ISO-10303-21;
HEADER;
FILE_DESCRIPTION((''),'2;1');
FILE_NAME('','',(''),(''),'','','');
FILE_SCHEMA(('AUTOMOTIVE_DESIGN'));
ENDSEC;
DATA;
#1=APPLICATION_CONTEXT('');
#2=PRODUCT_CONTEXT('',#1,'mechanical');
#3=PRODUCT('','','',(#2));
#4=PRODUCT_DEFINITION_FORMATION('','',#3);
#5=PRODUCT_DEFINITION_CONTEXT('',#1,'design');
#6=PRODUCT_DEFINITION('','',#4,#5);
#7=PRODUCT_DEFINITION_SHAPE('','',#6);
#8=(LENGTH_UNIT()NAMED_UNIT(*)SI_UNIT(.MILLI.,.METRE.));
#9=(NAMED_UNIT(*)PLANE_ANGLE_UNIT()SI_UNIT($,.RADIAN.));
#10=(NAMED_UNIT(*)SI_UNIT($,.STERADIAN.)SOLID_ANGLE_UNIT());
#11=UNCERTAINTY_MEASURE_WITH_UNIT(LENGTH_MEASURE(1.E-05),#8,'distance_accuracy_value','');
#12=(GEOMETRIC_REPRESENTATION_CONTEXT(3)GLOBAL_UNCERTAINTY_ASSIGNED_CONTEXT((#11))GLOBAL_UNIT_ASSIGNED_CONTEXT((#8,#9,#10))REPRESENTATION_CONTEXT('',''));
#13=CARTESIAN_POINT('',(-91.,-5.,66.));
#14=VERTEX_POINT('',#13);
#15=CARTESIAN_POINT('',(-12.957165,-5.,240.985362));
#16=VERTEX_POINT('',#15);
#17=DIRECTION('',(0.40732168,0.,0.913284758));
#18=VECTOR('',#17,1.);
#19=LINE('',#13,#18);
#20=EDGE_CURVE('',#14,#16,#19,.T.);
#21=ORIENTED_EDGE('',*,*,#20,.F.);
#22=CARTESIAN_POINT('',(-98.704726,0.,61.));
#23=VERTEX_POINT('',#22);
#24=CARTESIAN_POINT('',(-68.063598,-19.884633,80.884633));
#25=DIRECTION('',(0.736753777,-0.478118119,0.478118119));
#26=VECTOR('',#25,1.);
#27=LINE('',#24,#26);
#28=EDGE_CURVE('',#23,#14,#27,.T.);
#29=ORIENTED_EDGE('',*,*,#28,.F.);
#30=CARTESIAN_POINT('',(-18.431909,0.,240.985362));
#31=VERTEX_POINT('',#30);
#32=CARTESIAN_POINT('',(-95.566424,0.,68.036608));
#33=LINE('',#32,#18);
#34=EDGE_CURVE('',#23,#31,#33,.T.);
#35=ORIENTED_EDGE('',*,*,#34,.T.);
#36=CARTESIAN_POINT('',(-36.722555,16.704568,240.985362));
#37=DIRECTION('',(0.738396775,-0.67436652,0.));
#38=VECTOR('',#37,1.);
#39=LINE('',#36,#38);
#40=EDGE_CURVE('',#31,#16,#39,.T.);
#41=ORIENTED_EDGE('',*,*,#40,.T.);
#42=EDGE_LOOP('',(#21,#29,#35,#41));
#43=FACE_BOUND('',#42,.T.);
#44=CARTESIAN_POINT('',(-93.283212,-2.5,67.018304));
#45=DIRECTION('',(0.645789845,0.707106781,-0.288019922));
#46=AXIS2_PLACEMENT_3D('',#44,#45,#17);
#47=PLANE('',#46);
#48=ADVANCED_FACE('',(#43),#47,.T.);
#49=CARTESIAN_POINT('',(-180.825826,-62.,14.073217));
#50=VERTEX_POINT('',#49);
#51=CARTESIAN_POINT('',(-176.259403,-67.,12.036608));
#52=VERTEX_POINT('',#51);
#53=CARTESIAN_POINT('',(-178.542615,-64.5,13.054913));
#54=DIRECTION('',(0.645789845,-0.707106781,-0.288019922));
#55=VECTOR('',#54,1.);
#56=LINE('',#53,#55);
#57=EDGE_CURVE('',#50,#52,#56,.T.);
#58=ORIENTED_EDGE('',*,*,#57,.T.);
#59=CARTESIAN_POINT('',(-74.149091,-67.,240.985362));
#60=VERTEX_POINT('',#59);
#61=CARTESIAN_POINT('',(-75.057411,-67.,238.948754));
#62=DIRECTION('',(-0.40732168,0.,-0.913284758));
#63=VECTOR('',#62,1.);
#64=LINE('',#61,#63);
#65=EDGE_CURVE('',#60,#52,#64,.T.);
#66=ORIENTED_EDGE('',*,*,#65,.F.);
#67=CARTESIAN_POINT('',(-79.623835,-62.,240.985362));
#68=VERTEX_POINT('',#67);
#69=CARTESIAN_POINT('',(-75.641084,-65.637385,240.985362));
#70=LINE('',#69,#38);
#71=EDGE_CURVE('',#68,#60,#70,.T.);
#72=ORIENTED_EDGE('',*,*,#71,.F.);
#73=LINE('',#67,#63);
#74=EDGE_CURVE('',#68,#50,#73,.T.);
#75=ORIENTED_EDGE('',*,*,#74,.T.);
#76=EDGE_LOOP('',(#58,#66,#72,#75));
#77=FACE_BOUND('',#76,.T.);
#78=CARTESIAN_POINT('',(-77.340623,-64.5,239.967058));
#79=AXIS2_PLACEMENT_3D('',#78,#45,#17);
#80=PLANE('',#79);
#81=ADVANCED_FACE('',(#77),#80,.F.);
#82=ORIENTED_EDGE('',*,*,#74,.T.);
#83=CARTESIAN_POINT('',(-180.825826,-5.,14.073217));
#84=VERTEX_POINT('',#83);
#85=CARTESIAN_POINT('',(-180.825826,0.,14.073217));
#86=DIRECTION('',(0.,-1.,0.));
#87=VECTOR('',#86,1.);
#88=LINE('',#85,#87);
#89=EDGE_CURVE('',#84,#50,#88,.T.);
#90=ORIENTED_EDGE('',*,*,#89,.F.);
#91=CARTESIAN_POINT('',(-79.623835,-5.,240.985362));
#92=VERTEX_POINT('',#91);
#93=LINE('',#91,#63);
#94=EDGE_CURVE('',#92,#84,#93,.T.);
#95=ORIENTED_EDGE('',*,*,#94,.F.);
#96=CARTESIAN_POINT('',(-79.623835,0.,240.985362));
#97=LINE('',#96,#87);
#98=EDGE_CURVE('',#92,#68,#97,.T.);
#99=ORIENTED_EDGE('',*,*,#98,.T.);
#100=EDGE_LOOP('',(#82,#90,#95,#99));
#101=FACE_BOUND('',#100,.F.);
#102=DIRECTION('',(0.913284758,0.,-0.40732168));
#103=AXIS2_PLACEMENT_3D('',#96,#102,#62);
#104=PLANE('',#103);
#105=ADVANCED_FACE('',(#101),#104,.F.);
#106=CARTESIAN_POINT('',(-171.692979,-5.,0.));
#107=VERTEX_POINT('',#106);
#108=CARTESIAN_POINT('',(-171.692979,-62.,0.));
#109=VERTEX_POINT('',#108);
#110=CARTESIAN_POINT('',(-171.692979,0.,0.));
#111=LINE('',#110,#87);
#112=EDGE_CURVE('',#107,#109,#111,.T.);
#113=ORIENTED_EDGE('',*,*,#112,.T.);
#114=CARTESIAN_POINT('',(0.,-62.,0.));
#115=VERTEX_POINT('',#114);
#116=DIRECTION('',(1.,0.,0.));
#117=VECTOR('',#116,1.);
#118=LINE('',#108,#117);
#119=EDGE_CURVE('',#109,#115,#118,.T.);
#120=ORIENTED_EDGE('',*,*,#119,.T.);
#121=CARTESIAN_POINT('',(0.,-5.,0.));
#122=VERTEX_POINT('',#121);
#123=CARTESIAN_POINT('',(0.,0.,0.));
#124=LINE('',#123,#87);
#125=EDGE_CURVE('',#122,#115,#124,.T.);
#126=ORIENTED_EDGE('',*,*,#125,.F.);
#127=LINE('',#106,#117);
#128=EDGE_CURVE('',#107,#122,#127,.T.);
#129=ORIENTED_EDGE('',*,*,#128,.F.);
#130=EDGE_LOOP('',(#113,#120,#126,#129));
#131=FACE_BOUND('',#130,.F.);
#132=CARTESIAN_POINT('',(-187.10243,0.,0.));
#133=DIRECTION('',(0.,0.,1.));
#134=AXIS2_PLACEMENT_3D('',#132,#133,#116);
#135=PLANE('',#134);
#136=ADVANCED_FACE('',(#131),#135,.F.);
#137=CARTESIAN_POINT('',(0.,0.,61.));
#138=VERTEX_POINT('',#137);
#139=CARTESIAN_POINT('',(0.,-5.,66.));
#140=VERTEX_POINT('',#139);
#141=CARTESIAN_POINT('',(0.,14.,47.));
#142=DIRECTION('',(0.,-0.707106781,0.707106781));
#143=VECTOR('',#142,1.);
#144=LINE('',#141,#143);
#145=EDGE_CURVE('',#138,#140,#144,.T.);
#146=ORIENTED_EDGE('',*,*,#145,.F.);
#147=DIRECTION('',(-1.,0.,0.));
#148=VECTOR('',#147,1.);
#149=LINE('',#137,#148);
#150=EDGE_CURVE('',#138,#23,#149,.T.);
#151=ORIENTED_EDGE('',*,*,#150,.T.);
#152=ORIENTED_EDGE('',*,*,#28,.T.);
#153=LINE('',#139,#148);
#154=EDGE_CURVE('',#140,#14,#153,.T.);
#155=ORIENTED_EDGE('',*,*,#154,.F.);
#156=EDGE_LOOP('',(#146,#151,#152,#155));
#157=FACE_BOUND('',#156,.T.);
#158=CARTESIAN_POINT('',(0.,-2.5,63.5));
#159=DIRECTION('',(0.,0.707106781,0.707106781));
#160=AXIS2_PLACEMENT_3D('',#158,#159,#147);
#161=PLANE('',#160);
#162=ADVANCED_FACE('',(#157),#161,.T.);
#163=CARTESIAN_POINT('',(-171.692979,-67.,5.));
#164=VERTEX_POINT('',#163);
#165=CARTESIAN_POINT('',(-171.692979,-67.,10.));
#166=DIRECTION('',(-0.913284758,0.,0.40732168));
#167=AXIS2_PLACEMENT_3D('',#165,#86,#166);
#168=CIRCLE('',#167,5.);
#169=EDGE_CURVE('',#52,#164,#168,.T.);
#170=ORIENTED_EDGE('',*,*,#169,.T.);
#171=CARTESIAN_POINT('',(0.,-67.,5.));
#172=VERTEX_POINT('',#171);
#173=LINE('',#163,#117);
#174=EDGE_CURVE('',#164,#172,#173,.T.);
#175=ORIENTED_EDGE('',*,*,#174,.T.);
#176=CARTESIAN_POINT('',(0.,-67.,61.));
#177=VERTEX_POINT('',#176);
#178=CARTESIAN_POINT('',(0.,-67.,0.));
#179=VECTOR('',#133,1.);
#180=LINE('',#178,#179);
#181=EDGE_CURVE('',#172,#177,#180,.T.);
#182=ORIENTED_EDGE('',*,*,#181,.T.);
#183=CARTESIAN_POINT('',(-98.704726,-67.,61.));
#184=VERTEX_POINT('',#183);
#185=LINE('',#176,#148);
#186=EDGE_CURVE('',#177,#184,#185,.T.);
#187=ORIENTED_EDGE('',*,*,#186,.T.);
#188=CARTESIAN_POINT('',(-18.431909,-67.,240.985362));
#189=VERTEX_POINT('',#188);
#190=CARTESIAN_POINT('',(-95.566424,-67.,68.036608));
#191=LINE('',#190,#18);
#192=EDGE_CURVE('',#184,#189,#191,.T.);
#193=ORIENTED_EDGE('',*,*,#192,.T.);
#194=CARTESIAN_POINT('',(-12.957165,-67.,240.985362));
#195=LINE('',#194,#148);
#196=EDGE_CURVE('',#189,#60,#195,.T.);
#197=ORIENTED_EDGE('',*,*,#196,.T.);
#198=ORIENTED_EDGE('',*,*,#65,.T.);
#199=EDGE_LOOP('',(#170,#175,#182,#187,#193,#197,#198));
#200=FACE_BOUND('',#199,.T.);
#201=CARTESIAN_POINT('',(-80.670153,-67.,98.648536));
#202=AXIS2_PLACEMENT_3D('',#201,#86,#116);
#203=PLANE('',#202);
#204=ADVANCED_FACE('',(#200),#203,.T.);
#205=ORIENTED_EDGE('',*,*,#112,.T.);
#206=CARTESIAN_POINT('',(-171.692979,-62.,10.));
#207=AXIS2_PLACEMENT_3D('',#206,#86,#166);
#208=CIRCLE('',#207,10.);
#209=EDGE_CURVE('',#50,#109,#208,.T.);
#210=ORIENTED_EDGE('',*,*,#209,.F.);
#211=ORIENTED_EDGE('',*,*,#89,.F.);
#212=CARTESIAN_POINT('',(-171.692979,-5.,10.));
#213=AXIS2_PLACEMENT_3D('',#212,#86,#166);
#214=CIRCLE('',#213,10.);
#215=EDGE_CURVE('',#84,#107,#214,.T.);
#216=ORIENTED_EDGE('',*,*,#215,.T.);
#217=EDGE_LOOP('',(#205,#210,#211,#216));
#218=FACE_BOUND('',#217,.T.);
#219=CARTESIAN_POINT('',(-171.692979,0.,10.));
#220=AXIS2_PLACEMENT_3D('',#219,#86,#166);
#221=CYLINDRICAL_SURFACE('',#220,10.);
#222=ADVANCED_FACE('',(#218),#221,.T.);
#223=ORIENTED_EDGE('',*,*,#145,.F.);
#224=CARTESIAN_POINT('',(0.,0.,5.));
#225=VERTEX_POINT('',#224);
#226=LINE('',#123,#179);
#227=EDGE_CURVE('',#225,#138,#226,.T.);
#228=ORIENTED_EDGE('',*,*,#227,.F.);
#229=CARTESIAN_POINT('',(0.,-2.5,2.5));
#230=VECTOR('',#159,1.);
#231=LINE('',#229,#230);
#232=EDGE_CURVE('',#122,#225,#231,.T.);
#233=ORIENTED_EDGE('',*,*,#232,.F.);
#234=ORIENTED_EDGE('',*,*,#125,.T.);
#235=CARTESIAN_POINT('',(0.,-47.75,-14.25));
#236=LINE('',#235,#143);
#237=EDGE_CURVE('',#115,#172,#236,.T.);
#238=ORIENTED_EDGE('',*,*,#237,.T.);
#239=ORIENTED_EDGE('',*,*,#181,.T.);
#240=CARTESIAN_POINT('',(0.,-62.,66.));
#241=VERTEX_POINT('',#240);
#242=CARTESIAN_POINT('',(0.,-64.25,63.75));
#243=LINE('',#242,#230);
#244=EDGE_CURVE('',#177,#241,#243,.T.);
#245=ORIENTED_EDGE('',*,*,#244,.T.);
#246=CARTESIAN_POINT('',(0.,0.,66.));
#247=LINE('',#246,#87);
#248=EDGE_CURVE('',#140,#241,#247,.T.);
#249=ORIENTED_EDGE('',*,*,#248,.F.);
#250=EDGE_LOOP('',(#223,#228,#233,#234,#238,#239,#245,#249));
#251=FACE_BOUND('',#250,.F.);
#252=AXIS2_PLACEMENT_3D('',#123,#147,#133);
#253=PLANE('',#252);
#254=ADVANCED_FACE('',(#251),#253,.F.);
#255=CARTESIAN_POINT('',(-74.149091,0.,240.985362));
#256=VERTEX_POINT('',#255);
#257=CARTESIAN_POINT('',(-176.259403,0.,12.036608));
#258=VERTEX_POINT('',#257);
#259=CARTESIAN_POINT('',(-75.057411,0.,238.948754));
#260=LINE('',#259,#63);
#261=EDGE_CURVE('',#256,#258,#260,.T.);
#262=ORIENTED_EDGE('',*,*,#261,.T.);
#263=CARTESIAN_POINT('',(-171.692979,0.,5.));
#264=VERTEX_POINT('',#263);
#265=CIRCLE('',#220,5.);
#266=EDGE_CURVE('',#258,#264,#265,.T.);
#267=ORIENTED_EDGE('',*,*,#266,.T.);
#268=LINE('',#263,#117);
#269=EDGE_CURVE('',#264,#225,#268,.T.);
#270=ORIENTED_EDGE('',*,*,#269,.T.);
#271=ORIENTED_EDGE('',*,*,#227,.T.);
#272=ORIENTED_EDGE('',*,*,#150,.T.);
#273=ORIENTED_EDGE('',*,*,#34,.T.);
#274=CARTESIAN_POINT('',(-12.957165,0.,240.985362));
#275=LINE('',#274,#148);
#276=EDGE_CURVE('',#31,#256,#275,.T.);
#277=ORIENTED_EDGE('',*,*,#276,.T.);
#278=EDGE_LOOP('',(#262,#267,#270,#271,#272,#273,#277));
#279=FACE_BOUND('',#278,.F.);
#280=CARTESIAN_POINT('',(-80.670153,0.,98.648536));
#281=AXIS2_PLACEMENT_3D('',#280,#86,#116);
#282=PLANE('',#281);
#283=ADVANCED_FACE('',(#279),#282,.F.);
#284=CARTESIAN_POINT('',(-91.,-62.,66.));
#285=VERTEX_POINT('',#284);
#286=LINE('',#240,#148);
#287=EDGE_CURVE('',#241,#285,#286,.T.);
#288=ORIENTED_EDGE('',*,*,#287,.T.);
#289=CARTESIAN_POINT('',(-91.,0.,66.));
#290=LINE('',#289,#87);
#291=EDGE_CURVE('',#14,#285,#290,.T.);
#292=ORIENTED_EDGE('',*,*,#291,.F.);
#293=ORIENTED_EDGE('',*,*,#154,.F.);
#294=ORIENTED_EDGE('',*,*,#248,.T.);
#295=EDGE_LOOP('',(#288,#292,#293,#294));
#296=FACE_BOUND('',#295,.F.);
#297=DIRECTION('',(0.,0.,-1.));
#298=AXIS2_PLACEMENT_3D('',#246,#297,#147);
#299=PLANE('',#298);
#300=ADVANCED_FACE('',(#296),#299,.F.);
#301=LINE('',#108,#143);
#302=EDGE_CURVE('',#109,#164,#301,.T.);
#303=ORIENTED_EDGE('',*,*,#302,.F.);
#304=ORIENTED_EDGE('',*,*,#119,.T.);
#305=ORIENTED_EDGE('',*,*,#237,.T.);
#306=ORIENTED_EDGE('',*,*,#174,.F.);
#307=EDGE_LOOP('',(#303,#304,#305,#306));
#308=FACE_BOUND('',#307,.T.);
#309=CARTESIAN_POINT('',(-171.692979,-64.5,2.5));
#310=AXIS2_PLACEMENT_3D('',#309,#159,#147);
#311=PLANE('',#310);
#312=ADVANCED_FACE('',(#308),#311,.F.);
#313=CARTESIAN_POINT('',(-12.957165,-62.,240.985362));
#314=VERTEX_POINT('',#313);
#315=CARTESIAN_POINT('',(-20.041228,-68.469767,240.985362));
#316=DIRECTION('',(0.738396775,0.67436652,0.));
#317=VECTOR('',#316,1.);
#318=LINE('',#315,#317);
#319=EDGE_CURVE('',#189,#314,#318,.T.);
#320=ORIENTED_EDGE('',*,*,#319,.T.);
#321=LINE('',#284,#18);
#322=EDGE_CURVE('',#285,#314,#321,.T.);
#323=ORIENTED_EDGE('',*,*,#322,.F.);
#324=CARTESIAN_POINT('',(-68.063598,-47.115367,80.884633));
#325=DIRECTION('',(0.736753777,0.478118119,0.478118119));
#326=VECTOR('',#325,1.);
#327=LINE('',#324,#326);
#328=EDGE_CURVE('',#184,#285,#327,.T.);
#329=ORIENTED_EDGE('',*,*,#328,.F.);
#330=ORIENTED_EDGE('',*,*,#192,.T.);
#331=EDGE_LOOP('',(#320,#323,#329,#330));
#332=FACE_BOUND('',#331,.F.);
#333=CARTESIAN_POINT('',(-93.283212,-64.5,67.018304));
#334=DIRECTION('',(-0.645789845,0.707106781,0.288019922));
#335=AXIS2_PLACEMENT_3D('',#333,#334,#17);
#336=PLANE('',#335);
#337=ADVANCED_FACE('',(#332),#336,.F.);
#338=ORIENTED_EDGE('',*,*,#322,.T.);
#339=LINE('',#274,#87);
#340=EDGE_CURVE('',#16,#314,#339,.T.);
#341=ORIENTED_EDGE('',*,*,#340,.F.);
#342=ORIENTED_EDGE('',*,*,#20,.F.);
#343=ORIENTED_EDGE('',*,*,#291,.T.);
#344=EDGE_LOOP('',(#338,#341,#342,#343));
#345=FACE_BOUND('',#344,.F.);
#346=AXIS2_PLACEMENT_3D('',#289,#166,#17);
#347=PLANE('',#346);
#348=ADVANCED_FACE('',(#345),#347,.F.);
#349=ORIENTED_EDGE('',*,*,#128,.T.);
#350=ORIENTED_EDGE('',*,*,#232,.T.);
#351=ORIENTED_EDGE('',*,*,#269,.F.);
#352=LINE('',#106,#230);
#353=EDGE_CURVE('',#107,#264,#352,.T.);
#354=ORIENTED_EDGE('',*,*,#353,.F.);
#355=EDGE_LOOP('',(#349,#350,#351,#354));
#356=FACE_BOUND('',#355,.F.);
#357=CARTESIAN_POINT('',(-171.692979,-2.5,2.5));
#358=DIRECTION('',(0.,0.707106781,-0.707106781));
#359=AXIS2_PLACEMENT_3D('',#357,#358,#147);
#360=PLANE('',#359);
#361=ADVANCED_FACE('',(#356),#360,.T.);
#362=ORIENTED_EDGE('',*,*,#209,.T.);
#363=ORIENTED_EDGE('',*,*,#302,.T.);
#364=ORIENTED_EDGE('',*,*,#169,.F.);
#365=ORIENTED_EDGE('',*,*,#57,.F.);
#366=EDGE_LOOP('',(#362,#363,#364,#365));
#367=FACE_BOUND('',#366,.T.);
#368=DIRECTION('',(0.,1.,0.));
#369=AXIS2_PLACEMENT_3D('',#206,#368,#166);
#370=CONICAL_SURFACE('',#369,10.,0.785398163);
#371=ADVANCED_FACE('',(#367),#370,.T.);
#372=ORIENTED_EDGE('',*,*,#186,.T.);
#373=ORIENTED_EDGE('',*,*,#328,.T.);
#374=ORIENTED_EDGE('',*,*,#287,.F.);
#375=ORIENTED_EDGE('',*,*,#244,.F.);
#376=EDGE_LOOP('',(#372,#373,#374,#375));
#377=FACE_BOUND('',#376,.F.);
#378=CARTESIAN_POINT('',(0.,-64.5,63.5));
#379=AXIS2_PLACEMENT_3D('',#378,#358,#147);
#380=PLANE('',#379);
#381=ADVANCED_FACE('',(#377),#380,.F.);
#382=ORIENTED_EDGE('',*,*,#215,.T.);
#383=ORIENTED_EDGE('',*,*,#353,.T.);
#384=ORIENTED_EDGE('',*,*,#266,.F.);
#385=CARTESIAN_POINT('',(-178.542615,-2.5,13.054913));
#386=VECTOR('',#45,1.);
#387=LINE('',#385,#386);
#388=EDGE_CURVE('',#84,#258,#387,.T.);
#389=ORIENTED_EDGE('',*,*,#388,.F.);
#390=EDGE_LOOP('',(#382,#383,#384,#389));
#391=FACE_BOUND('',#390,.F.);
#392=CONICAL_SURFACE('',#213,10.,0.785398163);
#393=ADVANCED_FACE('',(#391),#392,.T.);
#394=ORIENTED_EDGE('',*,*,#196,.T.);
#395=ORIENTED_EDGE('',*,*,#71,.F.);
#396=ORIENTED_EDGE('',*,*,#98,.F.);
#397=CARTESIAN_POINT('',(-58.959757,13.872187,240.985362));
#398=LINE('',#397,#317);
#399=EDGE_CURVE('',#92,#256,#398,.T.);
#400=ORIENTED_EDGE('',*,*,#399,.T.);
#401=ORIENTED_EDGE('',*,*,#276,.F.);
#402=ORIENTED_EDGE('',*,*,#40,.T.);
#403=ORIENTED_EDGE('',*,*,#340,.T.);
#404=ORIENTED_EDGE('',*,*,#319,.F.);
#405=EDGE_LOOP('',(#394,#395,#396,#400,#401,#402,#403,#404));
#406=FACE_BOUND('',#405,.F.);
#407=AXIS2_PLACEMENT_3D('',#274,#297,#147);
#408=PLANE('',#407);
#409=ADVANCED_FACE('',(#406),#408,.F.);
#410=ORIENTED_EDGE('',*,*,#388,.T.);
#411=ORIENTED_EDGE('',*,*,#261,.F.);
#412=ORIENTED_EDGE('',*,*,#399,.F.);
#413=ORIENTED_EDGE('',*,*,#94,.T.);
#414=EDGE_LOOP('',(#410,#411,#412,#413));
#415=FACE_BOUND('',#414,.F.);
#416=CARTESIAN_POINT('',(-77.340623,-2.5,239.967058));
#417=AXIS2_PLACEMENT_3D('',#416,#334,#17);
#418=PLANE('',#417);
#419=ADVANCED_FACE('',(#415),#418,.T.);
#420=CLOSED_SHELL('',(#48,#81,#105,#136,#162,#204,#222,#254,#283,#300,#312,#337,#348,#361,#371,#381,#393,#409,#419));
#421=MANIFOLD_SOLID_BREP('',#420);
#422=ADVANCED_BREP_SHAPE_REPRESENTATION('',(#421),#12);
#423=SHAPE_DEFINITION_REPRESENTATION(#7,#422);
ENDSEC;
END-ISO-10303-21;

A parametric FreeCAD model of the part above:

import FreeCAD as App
import Part
import Sketcher

V = App.Vector
Q = App.Units.Quantity


def edges_at(feature, points):
    """Names of the edges that pass closest to the given points."""
    edges = feature.Shape.Edges
    near = lambda p: min(range(len(edges)), key=lambda i: edges[i].distToShape(Part.Vertex(*p))[0])
    return sorted({f"Edge{near(p) + 1}" for p in points})

doc = App.newDocument("Part")
params = doc.addObject("Spreadsheet::Sheet", "Params")
for row, (alias, value) in enumerate([
    ("sketch1_width", "91 mm"),
    ("sketch1_height", "66 mm"),
    ("pad1_length", "67 mm"),
    ("fillet_radius", "10 mm"),
    ("chamfer_size", "5 mm"),
], start=1):
    params.set(f"A{row}", alias)
    params.set(f"B{row}", "=" + value)
    params.setAlias(f"B{row}", alias)

body = doc.addObject("PartDesign::Body", "Body")

# Sketch on XZ plane
sketch1 = body.newObject("Sketcher::SketchObject", "Sketch")
sketch1.AttachmentSupport = (doc.getObject("XZ_Plane"), [""])
sketch1.MapMode = "FlatFace"
sketch1.addGeometry(Part.LineSegment(V(0, 0, 0), V(0, 66, 0)), False)
sketch1.addGeometry(Part.LineSegment(V(0, 66, 0), V(-91, 66, 0)), False)
sketch1.addGeometry(Part.LineSegment(V(-91, 66, 0), V(-13, 241, 0)), False)
sketch1.addGeometry(Part.LineSegment(V(-13, 241, 0), V(-80, 241, 0)), False)
sketch1.addGeometry(Part.LineSegment(V(-80, 241, 0), V(-187, 0, 0)), False)
sketch1.addGeometry(Part.LineSegment(V(-187, 0, 0), V(0, 0, 0)), False)
sketch1.addConstraint(Sketcher.Constraint("Coincident", 0, 2, 1, 1))
sketch1.addConstraint(Sketcher.Constraint("Coincident", 1, 2, 2, 1))
sketch1.addConstraint(Sketcher.Constraint("Coincident", 2, 2, 3, 1))
sketch1.addConstraint(Sketcher.Constraint("Coincident", 3, 2, 4, 1))
sketch1.addConstraint(Sketcher.Constraint("Coincident", 4, 2, 5, 1))
sketch1.addConstraint(Sketcher.Constraint("Coincident", 5, 2, 0, 1))
sketch1.addConstraint(Sketcher.Constraint("Vertical", 0))
sketch1.addConstraint(Sketcher.Constraint("Horizontal", 1))
sketch1.addConstraint(Sketcher.Constraint("Horizontal", 3))
sketch1.addConstraint(Sketcher.Constraint("Horizontal", 5))
sketch1.addConstraint(Sketcher.Constraint("Coincident", 5, 2, -1, 1))
sketch1.addConstraint(Sketcher.Constraint("Parallel", 2, 4))
sketch1.addConstraint(Sketcher.Constraint("DistanceX", 1, 2, 1, 1, Q("91 mm")))
sketch1.addConstraint(Sketcher.Constraint("DistanceY", 0, 1, 0, 2, Q("66 mm")))
sketch1.addConstraint(Sketcher.Constraint("DistanceX", 3, 2, 3, 1, Q("66.66667 mm")))
sketch1.addConstraint(Sketcher.Constraint("DistanceX", 5, 1, 5, 2, Q("187.10243 mm")))
sketch1.addConstraint(Sketcher.Constraint("Distance", 4, Q("263.86662 mm")))
sketch1.setExpression("Constraints[12]", "Params.sketch1_width")
sketch1.setExpression("Constraints[13]", "Params.sketch1_height")
pad1 = body.newObject("PartDesign::Pad", "Pad")
pad1.Profile = sketch1
pad1.setExpression("Length", "Params.pad1_length")
doc.recompute()

fillet = body.newObject("PartDesign::Fillet", "Fillet")
fillet.Base = (pad1, edges_at(pad1, [(-187.102, -33.5, 0)]))
fillet.setExpression("Radius", "Params.fillet_radius")
doc.recompute()

chamfer = body.newObject("PartDesign::Chamfer", "Chamfer")
chamfer.Base = (fillet, edges_at(fillet, [
    (-51.979, -67, 153.493),
    (-51.979, 0, 153.493),
    (-130.225, 0, 127.529),
    (-130.225, -67, 127.529),
    (-45.5, 0, 66),
    (-45.5, -67, 66),
]))
chamfer.setExpression("Size", "Params.chamfer_size")

doc.recompute()
